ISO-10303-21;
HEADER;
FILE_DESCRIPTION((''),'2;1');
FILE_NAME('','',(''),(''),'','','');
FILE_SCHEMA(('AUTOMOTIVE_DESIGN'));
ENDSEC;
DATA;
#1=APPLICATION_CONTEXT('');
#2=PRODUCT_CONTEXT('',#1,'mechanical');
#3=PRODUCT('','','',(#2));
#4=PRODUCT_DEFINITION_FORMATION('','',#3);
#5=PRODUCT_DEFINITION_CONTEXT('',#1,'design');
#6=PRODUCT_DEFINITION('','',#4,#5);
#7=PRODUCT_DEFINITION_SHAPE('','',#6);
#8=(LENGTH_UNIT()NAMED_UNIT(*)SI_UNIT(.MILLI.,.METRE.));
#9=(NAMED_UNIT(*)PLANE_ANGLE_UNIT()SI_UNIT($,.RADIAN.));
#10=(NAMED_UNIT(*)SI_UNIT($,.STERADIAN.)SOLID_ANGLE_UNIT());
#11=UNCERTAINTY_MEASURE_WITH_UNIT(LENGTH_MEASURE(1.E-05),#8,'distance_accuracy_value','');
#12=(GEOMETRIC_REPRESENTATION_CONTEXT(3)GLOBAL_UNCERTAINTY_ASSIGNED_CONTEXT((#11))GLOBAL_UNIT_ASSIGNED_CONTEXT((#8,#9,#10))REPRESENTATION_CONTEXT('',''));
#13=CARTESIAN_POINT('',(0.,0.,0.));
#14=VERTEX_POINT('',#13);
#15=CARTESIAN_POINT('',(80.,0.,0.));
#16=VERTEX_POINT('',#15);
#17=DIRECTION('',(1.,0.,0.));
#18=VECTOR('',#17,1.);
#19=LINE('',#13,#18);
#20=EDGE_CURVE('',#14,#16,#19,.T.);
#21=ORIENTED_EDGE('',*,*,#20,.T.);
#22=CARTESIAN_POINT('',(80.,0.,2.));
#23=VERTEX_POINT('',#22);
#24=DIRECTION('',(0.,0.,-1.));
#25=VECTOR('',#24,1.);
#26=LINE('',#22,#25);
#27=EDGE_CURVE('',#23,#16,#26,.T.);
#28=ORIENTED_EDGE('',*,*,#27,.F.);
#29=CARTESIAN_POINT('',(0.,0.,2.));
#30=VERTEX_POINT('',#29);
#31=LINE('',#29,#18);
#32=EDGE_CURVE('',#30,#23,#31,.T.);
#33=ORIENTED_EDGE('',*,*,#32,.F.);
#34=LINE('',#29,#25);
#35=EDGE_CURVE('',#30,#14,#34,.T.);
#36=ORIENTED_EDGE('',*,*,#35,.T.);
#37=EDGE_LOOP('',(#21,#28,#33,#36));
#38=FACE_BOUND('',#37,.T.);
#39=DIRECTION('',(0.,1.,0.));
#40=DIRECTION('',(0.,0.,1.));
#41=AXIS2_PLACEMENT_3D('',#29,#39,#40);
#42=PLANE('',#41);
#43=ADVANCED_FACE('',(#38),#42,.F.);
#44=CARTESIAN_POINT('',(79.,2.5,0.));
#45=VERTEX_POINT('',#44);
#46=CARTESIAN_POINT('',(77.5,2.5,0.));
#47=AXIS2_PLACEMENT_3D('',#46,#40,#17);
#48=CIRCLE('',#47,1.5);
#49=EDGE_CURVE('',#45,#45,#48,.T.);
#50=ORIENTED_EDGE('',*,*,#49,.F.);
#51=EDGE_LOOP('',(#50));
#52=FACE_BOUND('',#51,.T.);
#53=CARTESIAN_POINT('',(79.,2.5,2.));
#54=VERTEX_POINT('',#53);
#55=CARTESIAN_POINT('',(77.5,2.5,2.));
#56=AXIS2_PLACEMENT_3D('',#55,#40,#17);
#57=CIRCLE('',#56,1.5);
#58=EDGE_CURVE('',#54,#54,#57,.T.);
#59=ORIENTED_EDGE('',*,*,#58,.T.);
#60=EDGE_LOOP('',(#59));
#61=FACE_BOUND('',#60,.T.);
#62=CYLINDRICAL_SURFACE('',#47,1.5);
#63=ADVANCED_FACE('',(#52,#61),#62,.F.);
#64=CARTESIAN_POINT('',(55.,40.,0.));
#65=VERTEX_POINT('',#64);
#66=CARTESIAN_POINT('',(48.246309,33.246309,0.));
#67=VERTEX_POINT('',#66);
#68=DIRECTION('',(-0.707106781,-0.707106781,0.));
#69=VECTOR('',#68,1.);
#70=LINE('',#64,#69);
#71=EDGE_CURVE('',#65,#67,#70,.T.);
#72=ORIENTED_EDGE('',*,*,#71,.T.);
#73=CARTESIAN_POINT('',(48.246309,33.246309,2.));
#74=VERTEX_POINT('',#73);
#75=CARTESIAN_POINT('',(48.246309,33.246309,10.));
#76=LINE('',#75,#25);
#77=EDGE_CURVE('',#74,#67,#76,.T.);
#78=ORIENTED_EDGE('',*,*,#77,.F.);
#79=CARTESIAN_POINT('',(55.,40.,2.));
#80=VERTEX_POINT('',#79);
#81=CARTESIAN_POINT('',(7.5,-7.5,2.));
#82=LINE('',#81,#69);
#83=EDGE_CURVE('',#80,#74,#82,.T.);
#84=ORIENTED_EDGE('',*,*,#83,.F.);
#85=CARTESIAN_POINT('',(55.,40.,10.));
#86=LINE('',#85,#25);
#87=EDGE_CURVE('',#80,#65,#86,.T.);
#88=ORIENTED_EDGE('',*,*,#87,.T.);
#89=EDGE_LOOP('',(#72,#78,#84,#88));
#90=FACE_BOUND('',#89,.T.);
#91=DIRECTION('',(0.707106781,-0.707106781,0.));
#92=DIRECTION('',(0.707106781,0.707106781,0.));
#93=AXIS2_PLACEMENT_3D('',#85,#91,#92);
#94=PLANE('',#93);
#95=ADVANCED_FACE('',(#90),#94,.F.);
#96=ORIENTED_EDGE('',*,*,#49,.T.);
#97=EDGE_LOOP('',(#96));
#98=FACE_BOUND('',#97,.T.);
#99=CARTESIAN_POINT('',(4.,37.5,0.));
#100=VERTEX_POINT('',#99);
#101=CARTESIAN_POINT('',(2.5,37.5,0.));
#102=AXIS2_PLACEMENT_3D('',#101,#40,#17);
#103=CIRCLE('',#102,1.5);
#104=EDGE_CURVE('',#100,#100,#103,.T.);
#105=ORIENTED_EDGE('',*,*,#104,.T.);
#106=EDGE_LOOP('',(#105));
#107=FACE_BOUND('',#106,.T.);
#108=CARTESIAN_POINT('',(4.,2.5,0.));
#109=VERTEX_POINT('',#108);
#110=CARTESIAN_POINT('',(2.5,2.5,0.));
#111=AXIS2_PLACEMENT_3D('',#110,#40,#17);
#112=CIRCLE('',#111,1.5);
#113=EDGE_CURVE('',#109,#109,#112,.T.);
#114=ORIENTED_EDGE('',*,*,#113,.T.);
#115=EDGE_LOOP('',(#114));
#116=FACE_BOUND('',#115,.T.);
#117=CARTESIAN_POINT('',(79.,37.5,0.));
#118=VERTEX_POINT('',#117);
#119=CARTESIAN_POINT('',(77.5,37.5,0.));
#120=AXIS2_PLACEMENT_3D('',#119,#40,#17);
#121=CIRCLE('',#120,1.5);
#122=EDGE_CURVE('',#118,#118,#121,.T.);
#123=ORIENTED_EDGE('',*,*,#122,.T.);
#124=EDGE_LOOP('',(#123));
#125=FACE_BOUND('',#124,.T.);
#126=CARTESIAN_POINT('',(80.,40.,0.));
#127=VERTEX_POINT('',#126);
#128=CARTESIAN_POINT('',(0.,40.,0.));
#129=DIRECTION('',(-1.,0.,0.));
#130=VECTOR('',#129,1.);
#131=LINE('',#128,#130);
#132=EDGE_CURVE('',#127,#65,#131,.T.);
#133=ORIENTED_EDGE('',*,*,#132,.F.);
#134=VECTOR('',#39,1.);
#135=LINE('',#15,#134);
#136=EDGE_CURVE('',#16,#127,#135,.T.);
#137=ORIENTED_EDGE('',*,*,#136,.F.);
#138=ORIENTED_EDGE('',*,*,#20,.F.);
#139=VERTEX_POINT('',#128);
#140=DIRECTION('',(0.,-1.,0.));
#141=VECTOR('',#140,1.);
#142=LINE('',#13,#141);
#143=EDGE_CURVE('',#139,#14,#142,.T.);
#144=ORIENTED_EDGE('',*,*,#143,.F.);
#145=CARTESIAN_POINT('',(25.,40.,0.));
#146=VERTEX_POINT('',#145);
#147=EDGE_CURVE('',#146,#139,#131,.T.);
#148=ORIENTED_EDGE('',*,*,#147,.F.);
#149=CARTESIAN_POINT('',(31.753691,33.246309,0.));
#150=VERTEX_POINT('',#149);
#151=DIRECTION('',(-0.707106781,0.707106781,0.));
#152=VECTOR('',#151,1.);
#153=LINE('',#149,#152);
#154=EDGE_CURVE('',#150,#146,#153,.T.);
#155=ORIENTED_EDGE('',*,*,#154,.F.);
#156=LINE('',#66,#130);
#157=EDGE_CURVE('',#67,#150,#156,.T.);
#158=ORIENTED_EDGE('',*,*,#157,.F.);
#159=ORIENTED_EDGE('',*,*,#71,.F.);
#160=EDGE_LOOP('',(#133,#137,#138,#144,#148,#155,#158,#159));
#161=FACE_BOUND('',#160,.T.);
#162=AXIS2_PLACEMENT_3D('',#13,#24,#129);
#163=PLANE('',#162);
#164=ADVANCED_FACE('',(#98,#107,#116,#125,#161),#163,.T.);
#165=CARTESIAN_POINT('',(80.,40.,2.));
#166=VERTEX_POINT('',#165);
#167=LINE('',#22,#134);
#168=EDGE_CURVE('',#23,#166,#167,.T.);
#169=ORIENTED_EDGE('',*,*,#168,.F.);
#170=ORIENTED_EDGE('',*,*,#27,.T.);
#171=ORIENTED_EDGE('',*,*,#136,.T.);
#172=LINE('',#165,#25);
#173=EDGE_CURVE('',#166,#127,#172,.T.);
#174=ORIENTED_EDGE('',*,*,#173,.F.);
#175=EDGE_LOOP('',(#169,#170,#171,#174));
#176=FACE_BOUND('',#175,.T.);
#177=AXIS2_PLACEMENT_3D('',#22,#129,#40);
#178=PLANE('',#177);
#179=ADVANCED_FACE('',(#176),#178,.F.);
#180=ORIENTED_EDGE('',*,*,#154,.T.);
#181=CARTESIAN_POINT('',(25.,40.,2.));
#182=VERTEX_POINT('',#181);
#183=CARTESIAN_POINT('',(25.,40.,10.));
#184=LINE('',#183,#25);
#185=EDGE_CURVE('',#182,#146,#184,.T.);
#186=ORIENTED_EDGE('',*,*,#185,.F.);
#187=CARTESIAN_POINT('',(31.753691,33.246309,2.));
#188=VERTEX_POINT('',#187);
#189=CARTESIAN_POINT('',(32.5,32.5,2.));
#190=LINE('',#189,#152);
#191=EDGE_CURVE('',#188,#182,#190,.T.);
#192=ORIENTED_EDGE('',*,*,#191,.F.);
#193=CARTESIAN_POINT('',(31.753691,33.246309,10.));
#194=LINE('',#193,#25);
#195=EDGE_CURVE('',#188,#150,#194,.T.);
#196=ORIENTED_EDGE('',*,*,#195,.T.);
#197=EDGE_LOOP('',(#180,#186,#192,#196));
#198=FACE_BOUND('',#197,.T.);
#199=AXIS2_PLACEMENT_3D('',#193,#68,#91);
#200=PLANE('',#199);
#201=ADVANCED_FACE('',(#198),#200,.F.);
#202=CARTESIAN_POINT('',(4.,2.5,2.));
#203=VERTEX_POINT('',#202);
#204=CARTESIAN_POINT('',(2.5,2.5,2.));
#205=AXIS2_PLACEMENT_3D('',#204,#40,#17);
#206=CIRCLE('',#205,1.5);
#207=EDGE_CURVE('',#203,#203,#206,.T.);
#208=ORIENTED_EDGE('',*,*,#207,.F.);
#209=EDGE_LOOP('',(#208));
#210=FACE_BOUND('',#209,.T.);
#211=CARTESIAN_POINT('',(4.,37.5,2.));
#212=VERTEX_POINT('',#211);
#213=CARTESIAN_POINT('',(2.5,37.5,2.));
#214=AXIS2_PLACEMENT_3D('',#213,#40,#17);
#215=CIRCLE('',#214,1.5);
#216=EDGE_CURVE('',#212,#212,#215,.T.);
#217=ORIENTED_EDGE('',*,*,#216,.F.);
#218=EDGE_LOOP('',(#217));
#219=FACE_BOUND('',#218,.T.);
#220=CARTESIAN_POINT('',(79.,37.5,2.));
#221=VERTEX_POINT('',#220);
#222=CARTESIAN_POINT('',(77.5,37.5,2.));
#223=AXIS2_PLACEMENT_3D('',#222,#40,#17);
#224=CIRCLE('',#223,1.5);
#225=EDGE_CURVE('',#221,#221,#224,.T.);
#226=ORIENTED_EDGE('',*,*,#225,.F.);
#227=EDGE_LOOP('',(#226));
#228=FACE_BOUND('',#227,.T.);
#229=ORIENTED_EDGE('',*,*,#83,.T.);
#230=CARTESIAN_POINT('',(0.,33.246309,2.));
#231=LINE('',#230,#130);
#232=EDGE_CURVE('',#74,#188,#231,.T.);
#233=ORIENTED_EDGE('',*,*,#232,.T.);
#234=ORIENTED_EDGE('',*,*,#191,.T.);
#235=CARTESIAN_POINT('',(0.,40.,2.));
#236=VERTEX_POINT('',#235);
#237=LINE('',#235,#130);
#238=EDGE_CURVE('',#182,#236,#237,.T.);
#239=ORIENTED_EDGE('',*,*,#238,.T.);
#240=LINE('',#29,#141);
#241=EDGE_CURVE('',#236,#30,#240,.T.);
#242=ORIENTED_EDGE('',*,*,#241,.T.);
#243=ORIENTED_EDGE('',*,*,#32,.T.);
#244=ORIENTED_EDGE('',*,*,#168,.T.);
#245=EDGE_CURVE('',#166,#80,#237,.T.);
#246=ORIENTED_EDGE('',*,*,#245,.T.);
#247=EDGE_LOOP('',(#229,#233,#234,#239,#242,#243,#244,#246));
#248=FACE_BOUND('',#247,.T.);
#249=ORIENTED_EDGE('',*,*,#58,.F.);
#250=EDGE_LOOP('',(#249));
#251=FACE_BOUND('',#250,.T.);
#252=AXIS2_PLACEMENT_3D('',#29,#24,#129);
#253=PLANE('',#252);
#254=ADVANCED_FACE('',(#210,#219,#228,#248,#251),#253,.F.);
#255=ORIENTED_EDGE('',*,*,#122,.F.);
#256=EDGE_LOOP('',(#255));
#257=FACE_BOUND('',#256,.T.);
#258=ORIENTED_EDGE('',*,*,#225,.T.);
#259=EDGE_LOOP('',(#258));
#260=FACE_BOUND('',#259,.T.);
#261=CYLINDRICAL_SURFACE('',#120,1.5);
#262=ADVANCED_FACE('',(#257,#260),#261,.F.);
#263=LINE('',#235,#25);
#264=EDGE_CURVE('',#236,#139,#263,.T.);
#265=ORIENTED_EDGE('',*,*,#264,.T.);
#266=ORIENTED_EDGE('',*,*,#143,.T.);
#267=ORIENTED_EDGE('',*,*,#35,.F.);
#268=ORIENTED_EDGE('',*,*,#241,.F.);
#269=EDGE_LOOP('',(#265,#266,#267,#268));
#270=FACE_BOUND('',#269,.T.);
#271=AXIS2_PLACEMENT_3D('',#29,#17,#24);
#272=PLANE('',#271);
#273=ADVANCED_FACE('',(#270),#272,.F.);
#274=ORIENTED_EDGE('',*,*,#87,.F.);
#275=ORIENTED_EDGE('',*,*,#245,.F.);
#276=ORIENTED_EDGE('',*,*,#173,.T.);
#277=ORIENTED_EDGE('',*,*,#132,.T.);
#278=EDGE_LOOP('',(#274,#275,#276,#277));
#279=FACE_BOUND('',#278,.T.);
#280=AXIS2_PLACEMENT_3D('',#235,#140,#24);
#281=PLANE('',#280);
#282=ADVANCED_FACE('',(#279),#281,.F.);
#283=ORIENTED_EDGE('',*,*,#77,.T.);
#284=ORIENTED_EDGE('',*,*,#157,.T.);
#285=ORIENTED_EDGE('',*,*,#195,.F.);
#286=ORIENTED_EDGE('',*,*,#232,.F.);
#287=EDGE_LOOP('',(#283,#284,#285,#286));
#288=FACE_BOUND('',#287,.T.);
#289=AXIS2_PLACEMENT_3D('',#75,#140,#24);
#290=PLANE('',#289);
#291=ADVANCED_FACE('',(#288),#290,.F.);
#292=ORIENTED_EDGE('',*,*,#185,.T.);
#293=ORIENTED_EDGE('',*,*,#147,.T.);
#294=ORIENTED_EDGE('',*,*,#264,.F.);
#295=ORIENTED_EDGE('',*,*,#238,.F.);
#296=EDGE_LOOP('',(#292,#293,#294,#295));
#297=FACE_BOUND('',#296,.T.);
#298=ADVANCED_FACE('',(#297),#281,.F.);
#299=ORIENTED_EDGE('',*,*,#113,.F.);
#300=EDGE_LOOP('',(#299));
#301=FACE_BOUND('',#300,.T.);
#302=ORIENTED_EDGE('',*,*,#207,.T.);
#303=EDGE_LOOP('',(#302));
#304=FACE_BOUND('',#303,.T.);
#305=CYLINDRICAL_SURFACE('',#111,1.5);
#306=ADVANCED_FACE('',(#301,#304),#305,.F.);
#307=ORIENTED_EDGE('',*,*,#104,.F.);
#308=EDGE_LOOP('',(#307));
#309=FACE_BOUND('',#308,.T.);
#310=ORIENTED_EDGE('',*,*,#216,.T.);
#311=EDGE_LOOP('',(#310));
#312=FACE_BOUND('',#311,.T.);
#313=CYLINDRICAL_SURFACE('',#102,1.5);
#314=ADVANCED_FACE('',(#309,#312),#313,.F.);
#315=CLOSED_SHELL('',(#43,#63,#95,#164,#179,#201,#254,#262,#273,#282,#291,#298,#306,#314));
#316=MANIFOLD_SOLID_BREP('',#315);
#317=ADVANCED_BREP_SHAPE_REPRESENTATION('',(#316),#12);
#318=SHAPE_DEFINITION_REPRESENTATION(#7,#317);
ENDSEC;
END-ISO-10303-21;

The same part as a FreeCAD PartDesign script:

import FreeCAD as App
import Part
import Sketcher

V = App.Vector
Q = App.Units.Quantity


def add_polygon(sketch, points):
    """Adds a closed chain of lines whose ends are joined by coincident constraints."""
    first, n = sketch.GeometryCount, len(points)
    for a, b in zip(points, points[1:] + points[:1]):
        sketch.addGeometry(Part.LineSegment(App.Vector(*a, 0), App.Vector(*b, 0)), False)
    for i in range(n):
        sketch.addConstraint(Sketcher.Constraint("Coincident", first + i, 2, first + (i + 1) % n, 1))

doc = App.newDocument("Part")
body = doc.addObject("PartDesign::Body", "Body")

# Sketch on XY plane
sketch1 = body.newObject("Sketcher::SketchObject", "Sketch")
sketch1.AttachmentSupport = (doc.getObject("XY_Plane"), [""])
sketch1.MapMode = "FlatFace"
add_polygon(sketch1, [(0, 40), (0, 0), (80, 0), (80, 40)])  # lines 0-3
sketch1.addConstraint([
    Sketcher.Constraint("Vertical", 0),
    Sketcher.Constraint("Horizontal", 1),
    Sketcher.Constraint("Vertical", 2),
    Sketcher.Constraint("Horizontal", 3),
    Sketcher.Constraint("Coincident", 0, 2, -1, 1),
    Sketcher.Constraint("DistanceX", 1, 1, 1, 2, Q("80 mm")),
    Sketcher.Constraint("DistanceY", 0, 2, 0, 1, Q("40 mm")),
])
pad1 = body.newObject("PartDesign::Pad", "Pad")
pad1.Profile = sketch1
pad1.Length = 2

# Sketch on XY plane
sketch2 = body.newObject("Sketcher::SketchObject", "Sketch001")
sketch2.AttachmentSupport = (doc.getObject("XY_Plane"), [""])
sketch2.MapMode = "FlatFace"
sketch2.AttachmentOffset = App.Placement(V(0, 0, 2), App.Rotation())
sketch2.addGeometry([
    Part.Circle(V(2.5, 37.5, 0), V(0, 0, 1), 1.5),
    Part.Circle(V(77.5, 37.5, 0), V(0, 0, 1), 1.5),
    Part.Circle(V(2.5, 2.5, 0), V(0, 0, 1), 1.5),
    Part.Circle(V(77.5, 2.5, 0), V(0, 0, 1), 1.5),
], False)
sketch2.addConstraint([
    Sketcher.Constraint("Equal", 0, 1),
    Sketcher.Constraint("Equal", 1, 2),
    Sketcher.Constraint("Equal", 2, 3),
    Sketcher.Constraint("Horizontal", 0, 3, 1, 3),
    Sketcher.Constraint("Horizontal", 2, 3, 3, 3),
    Sketcher.Constraint("Vertical", 0, 3, 2, 3),
    Sketcher.Constraint("Vertical", 1, 3, 3, 3),
    Sketcher.Constraint("Diameter", 0, Q("3 mm")),
    Sketcher.Constraint("DistanceX", 0, 3, 1, 3, Q("75 mm")),
    Sketcher.Constraint("DistanceY", 2, 3, 0, 3, Q("35 mm")),
    Sketcher.Constraint("DistanceX", -1, 1, 0, 3, Q("2.5 mm")),
    Sketcher.Constraint("DistanceY", -1, 1, 0, 3, Q("37.5 mm")),
])
pocket1 = body.newObject("PartDesign::Pocket", "Pocket")
pocket1.Profile = sketch2
pocket1.Length = 2

# Sketch on XY plane
sketch3 = body.newObject("Sketcher::SketchObject", "Sketch002")
sketch3.AttachmentSupport = (doc.getObject("XY_Plane"), [""])
sketch3.MapMode = "FlatFace"
add_polygon(sketch3, [(25, 40), (55, 40), (48.246309, 33.246309), (31.753691, 33.246309)])  # lines 0-3
sketch3.addConstraint([
    Sketcher.Constraint("Horizontal", 0),
    Sketcher.Constraint("Horizontal", 2),
    Sketcher.Constraint("Perpendicular", 1, 3),
    Sketcher.Constraint("Equal", 1, 3),
    Sketcher.Constraint("DistanceX", 0, 1, 0, 2, Q("30 mm")),
    Sketcher.Constraint("DistanceX", -1, 1, 0, 2, Q("55 mm")),
    Sketcher.Constraint("DistanceY", -1, 1, 0, 2, Q("40 mm")),
    Sketcher.Constraint("Distance", 1, Q("9.551162 mm")),
])
pocket2 = body.newObject("PartDesign::Pocket", "Pocket001")
pocket2.Profile = sketch3
pocket2.Length = 10
pocket2.Reversed = True

doc.recompute()
